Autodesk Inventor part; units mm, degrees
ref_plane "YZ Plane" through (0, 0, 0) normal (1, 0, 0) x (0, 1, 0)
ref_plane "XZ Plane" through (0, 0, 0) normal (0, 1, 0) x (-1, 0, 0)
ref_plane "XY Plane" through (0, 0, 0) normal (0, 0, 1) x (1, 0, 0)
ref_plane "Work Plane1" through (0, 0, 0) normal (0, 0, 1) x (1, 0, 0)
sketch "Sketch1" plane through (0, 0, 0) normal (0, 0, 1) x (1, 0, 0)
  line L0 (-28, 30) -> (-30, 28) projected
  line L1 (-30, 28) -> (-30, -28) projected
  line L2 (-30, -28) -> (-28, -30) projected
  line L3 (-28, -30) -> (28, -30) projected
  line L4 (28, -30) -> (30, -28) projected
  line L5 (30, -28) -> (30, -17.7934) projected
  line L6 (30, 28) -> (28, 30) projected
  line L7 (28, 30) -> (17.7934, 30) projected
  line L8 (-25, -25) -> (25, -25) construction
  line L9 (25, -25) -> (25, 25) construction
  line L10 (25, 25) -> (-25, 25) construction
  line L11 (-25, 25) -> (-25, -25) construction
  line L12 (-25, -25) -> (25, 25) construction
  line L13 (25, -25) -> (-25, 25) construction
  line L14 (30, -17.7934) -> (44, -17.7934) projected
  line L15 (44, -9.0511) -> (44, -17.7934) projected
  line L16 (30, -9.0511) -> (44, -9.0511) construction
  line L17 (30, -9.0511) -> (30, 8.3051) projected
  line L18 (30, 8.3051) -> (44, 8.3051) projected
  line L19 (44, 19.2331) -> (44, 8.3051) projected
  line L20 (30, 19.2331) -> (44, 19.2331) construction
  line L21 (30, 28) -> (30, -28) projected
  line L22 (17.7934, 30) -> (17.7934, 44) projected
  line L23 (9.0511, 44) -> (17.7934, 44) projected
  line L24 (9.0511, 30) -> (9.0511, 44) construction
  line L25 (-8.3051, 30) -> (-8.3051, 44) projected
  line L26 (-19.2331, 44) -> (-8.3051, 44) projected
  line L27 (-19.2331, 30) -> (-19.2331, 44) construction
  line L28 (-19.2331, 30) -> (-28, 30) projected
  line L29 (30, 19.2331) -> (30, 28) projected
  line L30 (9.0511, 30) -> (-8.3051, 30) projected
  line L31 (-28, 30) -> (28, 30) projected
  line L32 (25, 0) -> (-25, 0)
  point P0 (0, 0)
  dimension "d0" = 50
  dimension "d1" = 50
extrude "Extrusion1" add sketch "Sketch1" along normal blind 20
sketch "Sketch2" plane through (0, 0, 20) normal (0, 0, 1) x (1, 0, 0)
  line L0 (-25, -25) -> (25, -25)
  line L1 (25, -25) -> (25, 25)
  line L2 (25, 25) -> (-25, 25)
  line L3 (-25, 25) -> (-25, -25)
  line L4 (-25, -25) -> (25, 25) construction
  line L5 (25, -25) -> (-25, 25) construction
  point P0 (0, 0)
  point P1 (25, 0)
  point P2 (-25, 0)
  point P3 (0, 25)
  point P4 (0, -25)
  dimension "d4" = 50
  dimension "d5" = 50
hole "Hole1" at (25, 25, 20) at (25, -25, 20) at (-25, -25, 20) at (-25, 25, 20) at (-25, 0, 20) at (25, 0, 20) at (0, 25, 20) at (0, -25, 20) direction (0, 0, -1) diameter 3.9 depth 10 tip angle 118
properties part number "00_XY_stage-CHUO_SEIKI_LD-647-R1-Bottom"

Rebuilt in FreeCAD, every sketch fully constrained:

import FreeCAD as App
import Part
import Sketcher
from FreeCAD import Vector
Q = App.Units.Quantity


def add_polygon(sketch, points):
    """Adds a closed chain of lines whose ends are joined by coincident constraints."""
    first, n = sketch.GeometryCount, len(points)
    for a, b in zip(points, points[1:] + points[:1]):
        sketch.addGeometry(Part.LineSegment(App.Vector(*a, 0), App.Vector(*b, 0)), False)
    for i in range(n):
        sketch.addConstraint(Sketcher.Constraint("Coincident", first + i, 2, first + (i + 1) % n, 1))

doc = App.newDocument("Part")
body = doc.addObject("PartDesign::Body", "Body")

sketch1 = doc.addObject("Sketcher::SketchObject", "Sketch")
body.addObject(sketch1)
sketch1.AttachmentSupport = (doc.XY_Plane, [""])
sketch1.MapMode = "FlatFace"
add_polygon(sketch1, [(28, 30), (-28, 30), (-30, 28), (-30, -28), (-28, -30), (28, -30), (30, -28), (30, 28)])
sketch1.addConstraint([
    Sketcher.Constraint("Horizontal", 0),
    Sketcher.Constraint("Vertical", 2),
    Sketcher.Constraint("Horizontal", 4),
    Sketcher.Constraint("Vertical", 6),
    Sketcher.Constraint("Symmetric", 0, 2, 4, 2, -1, 1),
    Sketcher.Constraint("Symmetric", 1, 2, 5, 2, -1, 1),
    Sketcher.Constraint("Perpendicular", 1, 3),
    Sketcher.Constraint("Perpendicular", 5, 7),
    Sketcher.Constraint("Horizontal", 2, 2, 5, 2),
    Sketcher.Constraint("Horizontal", 1, 2, 6, 2),
    Sketcher.Constraint("Vertical", 0, 2, 3, 2),
    Sketcher.Constraint("Equal", 4, 2),
    Sketcher.Constraint("DistanceX", 0, 2, 0, 1, Q("56 mm")),
    Sketcher.Constraint("DistanceY", -1, 1, 0, 2, Q("30 mm")),
])
pad1 = doc.addObject("PartDesign::Pad", "Pad")
body.addObject(pad1)
pad1.Profile = sketch1
pad1.Length = 20

sketch2 = doc.addObject("Sketcher::SketchObject", "Sketch001")
body.addObject(sketch2)
sketch2.AttachmentSupport = (doc.XY_Plane, [""])
sketch2.MapMode = "FlatFace"
sketch2.AttachmentOffset = App.Placement(Vector(0, 0, 20), App.Rotation())
sketch2.addGeometry([
    Part.Circle(Vector(25, 25, 0), Vector(0, 0, 1), 1.95),
    Part.Circle(Vector(25, -25, 0), Vector(0, 0, 1), 1.95),
    Part.Circle(Vector(-25, -25, 0), Vector(0, 0, 1), 1.95),
    Part.Circle(Vector(-25, 25, 0), Vector(0, 0, 1), 1.95),
    Part.Circle(Vector(-25, 0, 0), Vector(0, 0, 1), 1.95),
    Part.Circle(Vector(25, 0, 0), Vector(0, 0, 1), 1.95),
    Part.Circle(Vector(0, 25, 0), Vector(0, 0, 1), 1.95),
    Part.Circle(Vector(0, -25, 0), Vector(0, 0, 1), 1.95),
], False)
sketch2.addConstraint([
    Sketcher.Constraint("Equal", 0, 1),
    Sketcher.Constraint("Equal", 1, 2),
    Sketcher.Constraint("Equal", 2, 3),
    Sketcher.Constraint("Equal", 3, 4),
    Sketcher.Constraint("Equal", 4, 5),
    Sketcher.Constraint("Equal", 5, 6),
    Sketcher.Constraint("Equal", 6, 7),
    Sketcher.Constraint("Symmetric", 0, 3, 2, 3, -1, 1),
    Sketcher.Constraint("Symmetric", 1, 3, 3, 3, -1, 1),
    Sketcher.Constraint("Symmetric", 4, 3, 5, 3, -1, 1),
    Sketcher.Constraint("Symmetric", 6, 3, 7, 3, -1, 1),
    Sketcher.Constraint("Symmetric", 1, 3, 2, 3, -2),
    Sketcher.Constraint("PointOnObject", 4, 3, -1),
    Sketcher.Constraint("PointOnObject", 6, 3, -2),
    Sketcher.Constraint("Horizontal", 3, 3, 6, 3),
    Sketcher.Constraint("Vertical", 3, 3, 4, 3),
    Sketcher.Constraint("Diameter", 0, Q("3.9 mm")),
    Sketcher.Constraint("DistanceX", -1, 1, 0, 3, Q("25 mm")),
    Sketcher.Constraint("DistanceY", -1, 1, 0, 3, Q("25 mm")),
])
doc.recompute()
hole = doc.addObject("PartDesign::Hole", "Hole")
body.addObject(hole)
hole.Profile = sketch2
hole.ThreadType = "None"
hole.Diameter = 3.9
hole.DepthType = "Dimension"
hole.Depth = 10
hole.DrillPoint = "Angled"
hole.DrillPointAngle = 118

doc.recompute()
